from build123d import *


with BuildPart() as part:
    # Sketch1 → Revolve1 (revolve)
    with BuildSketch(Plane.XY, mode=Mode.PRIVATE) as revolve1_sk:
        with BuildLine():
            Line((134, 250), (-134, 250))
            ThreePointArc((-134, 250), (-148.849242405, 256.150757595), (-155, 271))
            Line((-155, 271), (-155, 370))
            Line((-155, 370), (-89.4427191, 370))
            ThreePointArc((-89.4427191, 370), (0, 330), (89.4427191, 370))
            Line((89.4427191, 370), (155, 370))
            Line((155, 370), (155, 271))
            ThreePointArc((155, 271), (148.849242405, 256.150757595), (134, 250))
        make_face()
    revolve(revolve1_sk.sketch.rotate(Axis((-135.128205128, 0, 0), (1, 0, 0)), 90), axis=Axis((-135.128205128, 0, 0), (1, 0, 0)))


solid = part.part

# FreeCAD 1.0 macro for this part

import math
import FreeCAD as App
import Part
import Sketcher
from FreeCAD import Vector

doc = App.newDocument("Part")
body = doc.addObject("PartDesign::Body", "Body")

# Sketch on XY plane
sketch1 = body.newObject("Sketcher::SketchObject", "Sketch")
sketch1.AttachmentSupport = (doc.getObject("XY_Plane"), [""])
sketch1.MapMode = "FlatFace"
sketch1.addGeometry(Part.LineSegment(Vector(-134, 250, 0), Vector(134, 250, 0)), False)
sketch1.addGeometry(Part.ArcOfCircle(Part.Circle(Vector(134, 271, 0), Vector(0, 0, 1), 21), math.radians(-90), math.radians(0)), False)
sketch1.addGeometry(Part.LineSegment(Vector(155, 271, 0), Vector(155, 370, 0)), False)
sketch1.addGeometry(Part.LineSegment(Vector(155, 370, 0), Vector(89, 370, 0)), False)
sketch1.addGeometry(Part.ArcOfCircle(Part.Circle(Vector(0, 450, 0), Vector(0, 0, 1), 120), math.radians(-138), math.radians(-42)), False)
sketch1.addGeometry(Part.LineSegment(Vector(-89, 370, 0), Vector(-155, 370, 0)), False)
sketch1.addGeometry(Part.LineSegment(Vector(-155, 370, 0), Vector(-155, 271, 0)), False)
sketch1.addGeometry(Part.ArcOfCircle(Part.Circle(Vector(-134, 271, 0), Vector(0, 0, 1), 21), math.radians(180), math.radians(270)), False)
sketch1.addConstraint(Sketcher.Constraint("Tangent", 0, 2, 1, 1))
sketch1.addConstraint(Sketcher.Constraint("Tangent", 1, 2, 2, 1))
sketch1.addConstraint(Sketcher.Constraint("Coincident", 2, 2, 3, 1))
sketch1.addConstraint(Sketcher.Constraint("Coincident", 3, 2, 4, 2))
sketch1.addConstraint(Sketcher.Constraint("Coincident", 4, 1, 5, 1))
sketch1.addConstraint(Sketcher.Constraint("Coincident", 5, 2, 6, 1))
sketch1.addConstraint(Sketcher.Constraint("Tangent", 6, 2, 7, 1))
sketch1.addConstraint(Sketcher.Constraint("Tangent", 7, 2, 0, 1))
sketch1.addConstraint(Sketcher.Constraint("Horizontal", 0))
sketch1.addConstraint(Sketcher.Constraint("Vertical", 2))
sketch1.addConstraint(Sketcher.Constraint("Horizontal", 3))
sketch1.addConstraint(Sketcher.Constraint("Horizontal", 5))
sketch1.addConstraint(Sketcher.Constraint("Vertical", 6))
sketch1.addConstraint(Sketcher.Constraint("Equal", 1, 7))
sketch1.addConstraint(Sketcher.Constraint("Symmetric", 3, 2, 4, 1, -2))
sketch1.addConstraint(Sketcher.Constraint("Equal", 3, 5))
sketch1.addConstraint(Sketcher.Constraint("Radius", 1, 21.0))
sketch1.addConstraint(Sketcher.Constraint("Radius", 4, 120.0))
sketch1.addConstraint(Sketcher.Constraint("DistanceX", 0, 1, 0, 2, 268.0))
sketch1.addConstraint(Sketcher.Constraint("DistanceY", 2, 1, 2, 2, 99.0))
sketch1.addConstraint(Sketcher.Constraint("DistanceY", -1, 1, 1, 3, 271.0))
sketch1.addConstraint(Sketcher.Constraint("DistanceY", -1, 1, 4, 3, 450.0))
revolution = body.newObject("PartDesign::Revolution", "Revolution")
revolution.Profile = sketch1
revolution.ReferenceAxis = (sketch1, ["H_Axis"])
revolution.Angle = 360

doc.recompute()
